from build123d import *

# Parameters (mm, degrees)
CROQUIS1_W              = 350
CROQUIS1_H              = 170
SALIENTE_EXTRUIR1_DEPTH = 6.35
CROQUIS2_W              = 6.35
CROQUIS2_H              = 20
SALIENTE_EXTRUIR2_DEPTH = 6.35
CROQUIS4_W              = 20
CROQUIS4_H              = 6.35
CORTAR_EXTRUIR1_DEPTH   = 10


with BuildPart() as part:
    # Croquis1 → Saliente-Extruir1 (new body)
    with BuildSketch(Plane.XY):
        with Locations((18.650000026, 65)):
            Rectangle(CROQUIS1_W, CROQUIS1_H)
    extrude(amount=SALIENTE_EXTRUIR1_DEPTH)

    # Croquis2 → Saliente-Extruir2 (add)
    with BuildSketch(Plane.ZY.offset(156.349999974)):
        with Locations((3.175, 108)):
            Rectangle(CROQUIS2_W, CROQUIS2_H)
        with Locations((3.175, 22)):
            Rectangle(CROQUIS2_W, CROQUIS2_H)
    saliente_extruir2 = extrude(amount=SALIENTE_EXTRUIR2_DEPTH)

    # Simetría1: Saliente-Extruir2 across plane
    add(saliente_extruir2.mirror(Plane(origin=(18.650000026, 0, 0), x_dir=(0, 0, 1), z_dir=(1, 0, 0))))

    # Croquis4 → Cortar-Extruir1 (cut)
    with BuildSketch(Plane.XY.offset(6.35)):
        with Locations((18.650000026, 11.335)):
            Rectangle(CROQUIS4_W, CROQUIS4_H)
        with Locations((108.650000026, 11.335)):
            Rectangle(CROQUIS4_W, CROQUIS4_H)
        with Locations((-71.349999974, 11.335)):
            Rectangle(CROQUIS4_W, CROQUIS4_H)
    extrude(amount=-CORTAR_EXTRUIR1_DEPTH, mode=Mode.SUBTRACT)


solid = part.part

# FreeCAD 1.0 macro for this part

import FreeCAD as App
import Part
import Sketcher

V = App.Vector


def add_polygon(sketch, points):
    """Adds a closed chain of lines whose ends are joined by coincident constraints."""
    first, n = sketch.GeometryCount, len(points)
    for a, b in zip(points, points[1:] + points[:1]):
        sketch.addGeometry(Part.LineSegment(App.Vector(*a, 0), App.Vector(*b, 0)), False)
    for i in range(n):
        sketch.addConstraint(Sketcher.Constraint("Coincident", first + i, 2, first + (i + 1) % n, 1))

doc = App.newDocument("Part")
body = doc.addObject("PartDesign::Body", "Body")

# Sketch on XY plane
sketch1 = body.newObject("Sketcher::SketchObject", "Sketch")
sketch1.AttachmentSupport = (doc.getObject("XY_Plane"), [""])
sketch1.MapMode = "FlatFace"
add_polygon(sketch1, [(-156, 150), (-156, -20), (194, -20), (194, 150)])  # lines 0-3
sketch1.addConstraint([
    Sketcher.Constraint("Vertical", 0),
    Sketcher.Constraint("Horizontal", 1),
    Sketcher.Constraint("Vertical", 2),
    Sketcher.Constraint("Horizontal", 3),
    Sketcher.Constraint("DistanceX", 1, 1, 1, 2, 350.0),
    Sketcher.Constraint("DistanceY", 0, 2, 0, 1, 170.0),
    Sketcher.Constraint("DistanceY", 0, 2, -1, 1, 20.0),
    Sketcher.Constraint("DistanceX", 0, 2, -1, 1, 156.35),
])
pad1 = body.newObject("PartDesign::Pad", "Pad")
pad1.Profile = sketch1
pad1.Length = 6.35

# Sketch on YZ plane
sketch2 = body.newObject("Sketcher::SketchObject", "Sketch001")
sketch2.AttachmentSupport = (doc.getObject("YZ_Plane"), [""])
sketch2.MapMode = "FlatFace"
sketch2.AttachmentOffset = App.Placement(V(0, 0, -156.35), App.Rotation())
add_polygon(sketch2, [(118, 0), (98, 0), (98, 6), (118, 6)])  # lines 0-3
add_polygon(sketch2, [(32, 0), (12, 0), (12, 6), (32, 6)])  # lines 4-7
sketch2.addConstraint([
    Sketcher.Constraint("Horizontal", 0),
    Sketcher.Constraint("Vertical", 1),
    Sketcher.Constraint("Horizontal", 2),
    Sketcher.Constraint("Vertical", 3),
    Sketcher.Constraint("Horizontal", 4),
    Sketcher.Constraint("Vertical", 5),
    Sketcher.Constraint("Horizontal", 6),
    Sketcher.Constraint("Vertical", 7),
    Sketcher.Constraint("PointOnObject", 0, 2, -1),
    Sketcher.Constraint("PointOnObject", 4, 2, -1),
    Sketcher.Constraint("Horizontal", 2, 2, 5, 2),
    Sketcher.Constraint("Equal", 2, 4),
    Sketcher.Constraint("DistanceX", 0, 2, 0, 1, 20.0),
    Sketcher.Constraint("DistanceX", -1, 1, 0, 2, 98.0),
    Sketcher.Constraint("DistanceX", -1, 1, 4, 2, 12.0),
    Sketcher.Constraint("DistanceY", 1, 1, 1, 2, 6.35),
])
pad2 = body.newObject("PartDesign::Pad", "Pad001")
pad2.Profile = sketch2
pad2.Length = 6.35
pad2.Reversed = True
doc.recompute()

datumplane = body.newObject("PartDesign::Plane", "DatumPlane")
datumplane.AttachmentSupport = (doc.getObject("YZ_Plane"), [""])
datumplane.MapMode = "FlatFace"
datumplane.AttachmentOffset = App.Placement(V(0, 0, 18.65), App.Rotation())
mirrored = body.newObject("PartDesign::Mirrored", "Mirrored")
mirrored.Originals = [pad2]
mirrored.MirrorPlane = (datumplane, [""])
body.Tip = mirrored

# Sketch on XY plane
sketch3 = body.newObject("Sketcher::SketchObject", "Sketch002")
sketch3.AttachmentSupport = (doc.getObject("XY_Plane"), [""])
sketch3.MapMode = "FlatFace"
sketch3.AttachmentOffset = App.Placement(V(0, 0, 6.35), App.Rotation())
add_polygon(sketch3, [(9, 15), (9, 8), (29, 8), (29, 15)])  # lines 0-3
add_polygon(sketch3, [(99, 15), (99, 8), (119, 8), (119, 15)])  # lines 4-7
add_polygon(sketch3, [(-81, 15), (-81, 8), (-61, 8), (-61, 15)])  # lines 8-11
sketch3.addConstraint([
    Sketcher.Constraint("Vertical", 0),
    Sketcher.Constraint("Horizontal", 1),
    Sketcher.Constraint("Vertical", 2),
    Sketcher.Constraint("Horizontal", 3),
    Sketcher.Constraint("Vertical", 4),
    Sketcher.Constraint("Horizontal", 5),
    Sketcher.Constraint("Vertical", 6),
    Sketcher.Constraint("Horizontal", 7),
    Sketcher.Constraint("Vertical", 8),
    Sketcher.Constraint("Horizontal", 9),
    Sketcher.Constraint("Vertical", 10),
    Sketcher.Constraint("Horizontal", 11),
    Sketcher.Constraint("Horizontal", 1, 2, 4, 2),
    Sketcher.Constraint("Horizontal", 3, 2, 6, 2),
    Sketcher.Constraint("Horizontal", 5, 2, 8, 2),
    Sketcher.Constraint("Horizontal", 7, 2, 10, 2),
    Sketcher.Constraint("Equal", 3, 5),
    Sketcher.Constraint("Equal", 7, 9),
    Sketcher.Constraint("DistanceX", 1, 1, 1, 2, 20.0),
    Sketcher.Constraint("DistanceX", 1, 2, 4, 2, 70.0),
    Sketcher.Constraint("DistanceX", 8, 2, 0, 2, 90.0),
    Sketcher.Constraint("DistanceY", 0, 2, 0, 1, 6.35),
    Sketcher.Constraint("DistanceX", -1, 1, 0, 2, 8.65),
    Sketcher.Constraint("DistanceY", -1, 1, 0, 2, 8.16),
])
pocket1 = body.newObject("PartDesign::Pocket", "Pocket")
pocket1.Profile = sketch3
pocket1.Length = 10

doc.recompute()
